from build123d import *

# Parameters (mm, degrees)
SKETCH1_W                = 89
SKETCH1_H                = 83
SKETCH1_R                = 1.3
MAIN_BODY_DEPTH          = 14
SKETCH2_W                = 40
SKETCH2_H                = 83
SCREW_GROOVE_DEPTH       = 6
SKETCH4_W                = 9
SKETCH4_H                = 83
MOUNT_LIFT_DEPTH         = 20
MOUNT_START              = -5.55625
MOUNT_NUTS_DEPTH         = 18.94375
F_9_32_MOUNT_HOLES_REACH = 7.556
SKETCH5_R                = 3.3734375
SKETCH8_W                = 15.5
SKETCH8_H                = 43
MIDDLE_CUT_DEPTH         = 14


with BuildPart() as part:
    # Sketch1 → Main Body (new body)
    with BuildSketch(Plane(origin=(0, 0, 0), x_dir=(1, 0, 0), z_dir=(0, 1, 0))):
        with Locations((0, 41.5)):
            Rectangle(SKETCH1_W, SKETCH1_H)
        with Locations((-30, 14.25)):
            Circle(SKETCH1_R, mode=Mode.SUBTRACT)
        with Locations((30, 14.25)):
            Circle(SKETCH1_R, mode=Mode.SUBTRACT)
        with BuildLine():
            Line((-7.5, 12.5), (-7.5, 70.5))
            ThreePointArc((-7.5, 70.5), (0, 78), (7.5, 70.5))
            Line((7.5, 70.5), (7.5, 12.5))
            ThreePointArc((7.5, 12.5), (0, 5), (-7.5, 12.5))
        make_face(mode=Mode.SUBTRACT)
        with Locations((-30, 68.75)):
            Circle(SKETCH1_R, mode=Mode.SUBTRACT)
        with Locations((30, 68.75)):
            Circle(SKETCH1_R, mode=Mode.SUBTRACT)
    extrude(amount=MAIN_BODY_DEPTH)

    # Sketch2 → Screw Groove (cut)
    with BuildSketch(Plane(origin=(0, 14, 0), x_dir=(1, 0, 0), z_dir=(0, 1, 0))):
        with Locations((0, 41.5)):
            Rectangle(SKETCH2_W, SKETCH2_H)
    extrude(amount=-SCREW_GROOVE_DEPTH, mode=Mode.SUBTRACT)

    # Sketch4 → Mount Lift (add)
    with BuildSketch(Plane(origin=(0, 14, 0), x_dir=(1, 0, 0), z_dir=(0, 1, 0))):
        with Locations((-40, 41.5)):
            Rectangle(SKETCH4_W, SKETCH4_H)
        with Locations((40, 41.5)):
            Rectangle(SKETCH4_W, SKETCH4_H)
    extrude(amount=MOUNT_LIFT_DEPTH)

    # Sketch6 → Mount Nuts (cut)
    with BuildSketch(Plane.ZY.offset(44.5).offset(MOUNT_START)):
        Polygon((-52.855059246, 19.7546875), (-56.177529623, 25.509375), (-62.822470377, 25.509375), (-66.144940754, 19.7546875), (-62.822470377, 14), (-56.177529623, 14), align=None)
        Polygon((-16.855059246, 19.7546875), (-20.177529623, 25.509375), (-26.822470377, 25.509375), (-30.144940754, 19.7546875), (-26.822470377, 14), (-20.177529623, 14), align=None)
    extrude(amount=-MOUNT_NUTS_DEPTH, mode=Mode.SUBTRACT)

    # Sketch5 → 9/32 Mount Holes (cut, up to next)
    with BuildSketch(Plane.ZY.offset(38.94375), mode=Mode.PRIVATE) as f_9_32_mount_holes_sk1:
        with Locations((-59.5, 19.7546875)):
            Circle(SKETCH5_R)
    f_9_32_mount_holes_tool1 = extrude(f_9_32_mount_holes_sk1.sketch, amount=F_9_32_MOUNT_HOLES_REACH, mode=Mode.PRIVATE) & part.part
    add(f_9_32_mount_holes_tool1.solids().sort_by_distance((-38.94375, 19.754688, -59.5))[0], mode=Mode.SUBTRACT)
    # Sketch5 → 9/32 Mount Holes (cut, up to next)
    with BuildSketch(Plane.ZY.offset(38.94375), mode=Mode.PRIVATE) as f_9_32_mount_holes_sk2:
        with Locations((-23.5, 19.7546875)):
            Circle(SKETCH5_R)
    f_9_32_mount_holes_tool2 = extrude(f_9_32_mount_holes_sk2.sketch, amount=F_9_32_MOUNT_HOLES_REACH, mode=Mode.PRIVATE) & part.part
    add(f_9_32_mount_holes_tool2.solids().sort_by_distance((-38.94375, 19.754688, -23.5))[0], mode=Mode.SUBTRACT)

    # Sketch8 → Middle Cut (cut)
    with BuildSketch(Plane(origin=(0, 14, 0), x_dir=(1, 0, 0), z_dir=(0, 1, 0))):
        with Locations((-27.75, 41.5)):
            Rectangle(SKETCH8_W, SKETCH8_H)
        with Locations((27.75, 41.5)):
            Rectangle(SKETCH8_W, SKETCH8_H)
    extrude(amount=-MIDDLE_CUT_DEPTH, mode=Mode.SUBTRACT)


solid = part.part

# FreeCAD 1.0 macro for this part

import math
import FreeCAD as App
import Part
import Sketcher

V = App.Vector
Q = App.Units.Quantity

doc = App.newDocument("Part")
body = doc.addObject("PartDesign::Body", "Body")

# Sketch on XZ plane
sketch1 = body.newObject("Sketcher::SketchObject", "Sketch")
sketch1.AttachmentSupport = (doc.getObject("XZ_Plane"), [""])
sketch1.MapMode = "FlatFace"
sketch1.addGeometry(Part.LineSegment(V(-44.5, -83, 0), V(-44.5, 0, 0)), False)
sketch1.addGeometry(Part.LineSegment(V(-44.5, 0, 0), V(44.5, 0, 0)), False)
sketch1.addGeometry(Part.LineSegment(V(44.5, 0, 0), V(44.5, -83, 0)), False)
sketch1.addGeometry(Part.LineSegment(V(44.5, -83, 0), V(-44.5, -83, 0)), False)
sketch1.addGeometry(Part.Circle(V(-30, -14.2, 0), V(0, 0, 1), 1.3), False)
sketch1.addGeometry(Part.Circle(V(30, -14.2, 0), V(0, 0, 1), 1.3), False)
sketch1.addGeometry(Part.Circle(V(-30, -68.8, 0), V(0, 0, 1), 1.3), False)
sketch1.addGeometry(Part.ArcOfCircle(Part.Circle(V(0, -12.5, 0), V(0, 0, 1), 7.5), math.radians(0), math.radians(180)), False)
sketch1.addGeometry(Part.LineSegment(V(-7.5, -12.5, 0), V(-7.5, -70.5, 0)), False)
sketch1.addGeometry(Part.ArcOfCircle(Part.Circle(V(0, -70.5, 0), V(0, 0, 1), 7.5), math.radians(180), math.radians(360)), False)
sketch1.addGeometry(Part.LineSegment(V(7.5, -70.5, 0), V(7.5, -12.5, 0)), False)
sketch1.addGeometry(Part.Circle(V(30, -68.8, 0), V(0, 0, 1), 1.3), False)
sketch1.addConstraint(Sketcher.Constraint("Coincident", 0, 2, 1, 1))
sketch1.addConstraint(Sketcher.Constraint("Coincident", 1, 2, 2, 1))
sketch1.addConstraint(Sketcher.Constraint("Coincident", 2, 2, 3, 1))
sketch1.addConstraint(Sketcher.Constraint("Coincident", 3, 2, 0, 1))
sketch1.addConstraint(Sketcher.Constraint("Tangent", 7, 2, 8, 1))
sketch1.addConstraint(Sketcher.Constraint("Tangent", 8, 2, 9, 1))
sketch1.addConstraint(Sketcher.Constraint("Tangent", 9, 2, 10, 1))
sketch1.addConstraint(Sketcher.Constraint("Tangent", 10, 2, 7, 1))
sketch1.addConstraint(Sketcher.Constraint("Vertical", 0))
sketch1.addConstraint(Sketcher.Constraint("Horizontal", 1))
sketch1.addConstraint(Sketcher.Constraint("Vertical", 2))
sketch1.addConstraint(Sketcher.Constraint("Horizontal", 3))
sketch1.addConstraint(Sketcher.Constraint("Vertical", 8))
sketch1.addConstraint(Sketcher.Constraint("Vertical", 10))
sketch1.addConstraint(Sketcher.Constraint("Equal", 4, 5))
sketch1.addConstraint(Sketcher.Constraint("Equal", 5, 6))
sketch1.addConstraint(Sketcher.Constraint("Equal", 6, 11))
sketch1.addConstraint(Sketcher.Constraint("Symmetric", 0, 2, 1, 2, -1, 1))
sketch1.addConstraint(Sketcher.Constraint("Symmetric", 4, 3, 5, 3, -2))
sketch1.addConstraint(Sketcher.Constraint("Symmetric", 6, 3, 11, 3, -2))
sketch1.addConstraint(Sketcher.Constraint("PointOnObject", 7, 3, -2))
sketch1.addConstraint(Sketcher.Constraint("Vertical", 4, 3, 6, 3))
sketch1.addConstraint(Sketcher.Constraint("Diameter", 4, 2.6))
sketch1.addConstraint(Sketcher.Constraint("Radius", 7, 7.5))
sketch1.addConstraint(Sketcher.Constraint("DistanceX", 1, 1, 1, 2, 89.0))
sketch1.addConstraint(Sketcher.Constraint("DistanceY", 0, 1, 0, 2, 83.0))
sketch1.addConstraint(Sketcher.Constraint("DistanceY", 8, 2, 8, 1, 58.0))
sketch1.addConstraint(Sketcher.Constraint("DistanceX", 4, 3, -1, 1, 30.0))
sketch1.addConstraint(Sketcher.Constraint("DistanceY", 7, 3, -1, 1, 12.5))
sketch1.addConstraint(Sketcher.Constraint("DistanceY", 6, 3, 4, 3, 54.5))
sketch1.addConstraint(Sketcher.Constraint("DistanceY", 4, 3, -1, 1, 14.25))
pad1 = body.newObject("PartDesign::Pad", "Pad")
pad1.Profile = sketch1
pad1.Length = 14
pad1.Reversed = True

# Sketch on XZ plane
sketch2 = body.newObject("Sketcher::SketchObject", "Sketch001")
sketch2.AttachmentSupport = (doc.getObject("XZ_Plane"), [""])
sketch2.MapMode = "FlatFace"
sketch2.AttachmentOffset = App.Placement(V(0, 0, -14), App.Rotation())
sketch2.addGeometry(Part.LineSegment(V(-20, -83, 0), V(-20, 0, 0)), False)
sketch2.addGeometry(Part.LineSegment(V(-20, 0, 0), V(20, 0, 0)), False)
sketch2.addGeometry(Part.LineSegment(V(20, 0, 0), V(20, -83, 0)), False)
sketch2.addGeometry(Part.LineSegment(V(20, -83, 0), V(-20, -83, 0)), False)
sketch2.addConstraint(Sketcher.Constraint("Coincident", 0, 2, 1, 1))
sketch2.addConstraint(Sketcher.Constraint("Coincident", 1, 2, 2, 1))
sketch2.addConstraint(Sketcher.Constraint("Coincident", 2, 2, 3, 1))
sketch2.addConstraint(Sketcher.Constraint("Coincident", 3, 2, 0, 1))
sketch2.addConstraint(Sketcher.Constraint("Vertical", 0))
sketch2.addConstraint(Sketcher.Constraint("Horizontal", 1))
sketch2.addConstraint(Sketcher.Constraint("Vertical", 2))
sketch2.addConstraint(Sketcher.Constraint("Horizontal", 3))
sketch2.addConstraint(Sketcher.Constraint("Symmetric", 0, 2, 1, 2, -1, 1))
sketch2.addConstraint(Sketcher.Constraint("DistanceX", 1, 1, 1, 2, 40.0))
sketch2.addConstraint(Sketcher.Constraint("DistanceY", 0, 1, 0, 2, 83.0))
pocket1 = body.newObject("PartDesign::Pocket", "Pocket")
pocket1.Profile = sketch2
pocket1.Length = 6
pocket1.Reversed = True

# Sketch on XZ plane
sketch3 = body.newObject("Sketcher::SketchObject", "Sketch002")
sketch3.AttachmentSupport = (doc.getObject("XZ_Plane"), [""])
sketch3.MapMode = "FlatFace"
sketch3.AttachmentOffset = App.Placement(V(0, 0, -14), App.Rotation())
sketch3.addGeometry(Part.LineSegment(V(-44, -83, 0), V(-44, 0, 0)), False)
sketch3.addGeometry(Part.LineSegment(V(-44, 0, 0), V(-36, 0, 0)), False)
sketch3.addGeometry(Part.LineSegment(V(-36, 0, 0), V(-36, -83, 0)), False)
sketch3.addGeometry(Part.LineSegment(V(-36, -83, 0), V(-44, -83, 0)), False)
sketch3.addGeometry(Part.LineSegment(V(36, -83, 0), V(36, 0, 0)), False)
sketch3.addGeometry(Part.LineSegment(V(36, 0, 0), V(44, 0, 0)), False)
sketch3.addGeometry(Part.LineSegment(V(44, 0, 0), V(44, -83, 0)), False)
sketch3.addGeometry(Part.LineSegment(V(44, -83, 0), V(36, -83, 0)), False)
sketch3.addConstraint(Sketcher.Constraint("Coincident", 0, 2, 1, 1))
sketch3.addConstraint(Sketcher.Constraint("Coincident", 1, 2, 2, 1))
sketch3.addConstraint(Sketcher.Constraint("Coincident", 2, 2, 3, 1))
sketch3.addConstraint(Sketcher.Constraint("Coincident", 3, 2, 0, 1))
sketch3.addConstraint(Sketcher.Constraint("Coincident", 4, 2, 5, 1))
sketch3.addConstraint(Sketcher.Constraint("Coincident", 5, 2, 6, 1))
sketch3.addConstraint(Sketcher.Constraint("Coincident", 6, 2, 7, 1))
sketch3.addConstraint(Sketcher.Constraint("Coincident", 7, 2, 4, 1))
sketch3.addConstraint(Sketcher.Constraint("Vertical", 0))
sketch3.addConstraint(Sketcher.Constraint("Horizontal", 1))
sketch3.addConstraint(Sketcher.Constraint("Vertical", 2))
sketch3.addConstraint(Sketcher.Constraint("Horizontal", 3))
sketch3.addConstraint(Sketcher.Constraint("Vertical", 4))
sketch3.addConstraint(Sketcher.Constraint("Horizontal", 5))
sketch3.addConstraint(Sketcher.Constraint("Vertical", 6))
sketch3.addConstraint(Sketcher.Constraint("Horizontal", 7))
sketch3.addConstraint(Sketcher.Constraint("Symmetric", 1, 2, 4, 2, -1, 1))
sketch3.addConstraint(Sketcher.Constraint("Symmetric", 0, 2, 5, 2, -2))
sketch3.addConstraint(Sketcher.Constraint("Horizontal", 3, 2, 6, 2))
sketch3.addConstraint(Sketcher.Constraint("DistanceX", 1, 1, 1, 2, 9.0))
sketch3.addConstraint(Sketcher.Constraint("DistanceY", 0, 1, 0, 2, 83.0))
sketch3.addConstraint(Sketcher.Constraint("DistanceX", 1, 2, 4, 2, 71.0))
pad2 = body.newObject("PartDesign::Pad", "Pad001")
pad2.Profile = sketch3
pad2.Length = 20
pad2.Reversed = True

# Sketch on YZ plane
sketch4 = body.newObject("Sketcher::SketchObject", "Sketch003")
sketch4.AttachmentSupport = (doc.getObject("YZ_Plane"), [""])
sketch4.MapMode = "FlatFace"
sketch4.AttachmentOffset = App.Placement(V(0, 0, -38.94375), App.Rotation())
sketch4.addGeometry(Part.LineSegment(V(20, -53, 0), V(26, -56, 0)), False)
sketch4.addGeometry(Part.LineSegment(V(26, -56, 0), V(26, -63, 0)), False)
sketch4.addGeometry(Part.LineSegment(V(26, -63, 0), V(20, -66, 0)), False)
sketch4.addGeometry(Part.LineSegment(V(20, -66, 0), V(14, -63, 0)), False)
sketch4.addGeometry(Part.LineSegment(V(14, -63, 0), V(14, -56, 0)), False)
sketch4.addGeometry(Part.LineSegment(V(14, -56, 0), V(20, -53, 0)), False)
sketch4.addGeometry(Part.LineSegment(V(20, -17, 0), V(26, -20, 0)), False)
sketch4.addGeometry(Part.LineSegment(V(26, -20, 0), V(26, -27, 0)), False)
sketch4.addGeometry(Part.LineSegment(V(26, -27, 0), V(20, -30, 0)), False)
sketch4.addGeometry(Part.LineSegment(V(20, -30, 0), V(14, -27, 0)), False)
sketch4.addGeometry(Part.LineSegment(V(14, -27, 0), V(14, -20, 0)), False)
sketch4.addGeometry(Part.LineSegment(V(14, -20, 0), V(20, -17, 0)), False)
sketch4.addConstraint(Sketcher.Constraint("Coincident", 0, 2, 1, 1))
sketch4.addConstraint(Sketcher.Constraint("Coincident", 1, 2, 2, 1))
sketch4.addConstraint(Sketcher.Constraint("Coincident", 2, 2, 3, 1))
sketch4.addConstraint(Sketcher.Constraint("Coincident", 3, 2, 4, 1))
sketch4.addConstraint(Sketcher.Constraint("Coincident", 4, 2, 5, 1))
sketch4.addConstraint(Sketcher.Constraint("Coincident", 5, 2, 0, 1))
sketch4.addConstraint(Sketcher.Constraint("Coincident", 6, 2, 7, 1))
sketch4.addConstraint(Sketcher.Constraint("Coincident", 7, 2, 8, 1))
sketch4.addConstraint(Sketcher.Constraint("Coincident", 8, 2, 9, 1))
sketch4.addConstraint(Sketcher.Constraint("Coincident", 9, 2, 10, 1))
sketch4.addConstraint(Sketcher.Constraint("Coincident", 10, 2, 11, 1))
sketch4.addConstraint(Sketcher.Constraint("Coincident", 11, 2, 6, 1))
sketch4.addConstraint(Sketcher.Constraint("Vertical", 1))
sketch4.addConstraint(Sketcher.Constraint("Vertical", 4))
sketch4.addConstraint(Sketcher.Constraint("Vertical", 7))
sketch4.addConstraint(Sketcher.Constraint("Vertical", 10))
sketch4.addConstraint(Sketcher.Constraint("Parallel", 0, 3))
sketch4.addConstraint(Sketcher.Constraint("Parallel", 2, 5))
sketch4.addConstraint(Sketcher.Constraint("Parallel", 3, 6))
sketch4.addConstraint(Sketcher.Constraint("Parallel", 5, 8))
sketch4.addConstraint(Sketcher.Constraint("Parallel", 6, 9))
sketch4.addConstraint(Sketcher.Constraint("Parallel", 8, 11))
sketch4.addConstraint(Sketcher.Constraint("Horizontal", 1, 2, 3, 2))
sketch4.addConstraint(Sketcher.Constraint("Horizontal", 0, 2, 4, 2))
sketch4.addConstraint(Sketcher.Constraint("Horizontal", 7, 2, 9, 2))
sketch4.addConstraint(Sketcher.Constraint("Horizontal", 6, 2, 10, 2))
sketch4.addConstraint(Sketcher.Constraint("Vertical", 2, 2, 5, 2))
sketch4.addConstraint(Sketcher.Constraint("Vertical", 1, 2, 6, 2))
sketch4.addConstraint(Sketcher.Constraint("Vertical", 5, 2, 8, 2))
sketch4.addConstraint(Sketcher.Constraint("Equal", 4, 7))
sketch4.addConstraint(Sketcher.Constraint("Angle", 0, Q("-30 deg")))
sketch4.addConstraint(Sketcher.Constraint("DistanceX", -1, 1, 3, 2, 14.0))
sketch4.addConstraint(Sketcher.Constraint("DistanceY", 0, 2, 6, 2, 36.0))
sketch4.addConstraint(Sketcher.Constraint("DistanceY", 1, 2, 1, 1, 6.644941))
sketch4.addConstraint(Sketcher.Constraint("Distance", 0, 6.644941))
sketch4.addConstraint(Sketcher.Constraint("DistanceY", 0, 2, -1, 1, 56.17753))
pocket2 = body.newObject("PartDesign::Pocket", "Pocket001")
pocket2.Profile = sketch4
pocket2.Length = 18.94375
pocket2.Reversed = True

# Sketch on YZ plane
sketch5 = body.newObject("Sketcher::SketchObject", "Sketch004")
sketch5.AttachmentSupport = (doc.getObject("YZ_Plane"), [""])
sketch5.MapMode = "FlatFace"
sketch5.AttachmentOffset = App.Placement(V(0, 0, -38.94375), App.Rotation())
sketch5.addGeometry(Part.Circle(V(19.8, -59.5, 0), V(0, 0, 1), 3.4), False)
sketch5.addConstraint(Sketcher.Constraint("DistanceY", 0, 3, -1, 1, 59.5))
sketch5.addConstraint(Sketcher.Constraint("Diameter", 0, 6.746875))
sketch5.addConstraint(Sketcher.Constraint("DistanceX", -1, 1, 0, 3, 19.754687))
pocket3 = body.newObject("PartDesign::Pocket", "Pocket002")
pocket3.Profile = sketch5
pocket3.Type = "UpToFirst"

# Sketch on YZ plane
sketch6 = body.newObject("Sketcher::SketchObject", "Sketch005")
sketch6.AttachmentSupport = (doc.getObject("YZ_Plane"), [""])
sketch6.MapMode = "FlatFace"
sketch6.AttachmentOffset = App.Placement(V(0, 0, -38.94375), App.Rotation())
sketch6.addGeometry(Part.Circle(V(19.8, -23.5, 0), V(0, 0, 1), 3.4), False)
sketch6.addConstraint(Sketcher.Constraint("DistanceY", 0, 3, -1, 1, 23.5))
sketch6.addConstraint(Sketcher.Constraint("Diameter", 0, 6.746875))
sketch6.addConstraint(Sketcher.Constraint("DistanceX", -1, 1, 0, 3, 19.754687))
pocket4 = body.newObject("PartDesign::Pocket", "Pocket003")
pocket4.Profile = sketch6
pocket4.Type = "UpToFirst"

# Sketch on XZ plane
sketch7 = body.newObject("Sketcher::SketchObject", "Sketch006")
sketch7.AttachmentSupport = (doc.getObject("XZ_Plane"), [""])
sketch7.MapMode = "FlatFace"
sketch7.AttachmentOffset = App.Placement(V(0, 0, -14), App.Rotation())
sketch7.addGeometry(Part.LineSegment(V(-36, -63, 0), V(-36, -20, 0)), False)
sketch7.addGeometry(Part.LineSegment(V(-36, -20, 0), V(-20, -20, 0)), False)
sketch7.addGeometry(Part.LineSegment(V(-20, -20, 0), V(-20, -63, 0)), False)
sketch7.addGeometry(Part.LineSegment(V(-20, -63, 0), V(-36, -63, 0)), False)
sketch7.addGeometry(Part.LineSegment(V(20, -63, 0), V(20, -20, 0)), False)
sketch7.addGeometry(Part.LineSegment(V(20, -20, 0), V(36, -20, 0)), False)
sketch7.addGeometry(Part.LineSegment(V(36, -20, 0), V(36, -63, 0)), False)
sketch7.addGeometry(Part.LineSegment(V(36, -63, 0), V(20, -63, 0)), False)
sketch7.addConstraint(Sketcher.Constraint("Coincident", 0, 2, 1, 1))
sketch7.addConstraint(Sketcher.Constraint("Coincident", 1, 2, 2, 1))
sketch7.addConstraint(Sketcher.Constraint("Coincident", 2, 2, 3, 1))
sketch7.addConstraint(Sketcher.Constraint("Coincident", 3, 2, 0, 1))
sketch7.addConstraint(Sketcher.Constraint("Coincident", 4, 2, 5, 1))
sketch7.addConstraint(Sketcher.Constraint("Coincident", 5, 2, 6, 1))
sketch7.addConstraint(Sketcher.Constraint("Coincident", 6, 2, 7, 1))
sketch7.addConstraint(Sketcher.Constraint("Coincident", 7, 2, 4, 1))
sketch7.addConstraint(Sketcher.Constraint("Vertical", 0))
sketch7.addConstraint(Sketcher.Constraint("Horizontal", 1))
sketch7.addConstraint(Sketcher.Constraint("Vertical", 2))
sketch7.addConstraint(Sketcher.Constraint("Horizontal", 3))
sketch7.addConstraint(Sketcher.Constraint("Vertical", 4))
sketch7.addConstraint(Sketcher.Constraint("Horizontal", 5))
sketch7.addConstraint(Sketcher.Constraint("Vertical", 6))
sketch7.addConstraint(Sketcher.Constraint("Horizontal", 7))
sketch7.addConstraint(Sketcher.Constraint("Symmetric", 1, 2, 4, 2, -2))
sketch7.addConstraint(Sketcher.Constraint("Symmetric", 3, 2, 6, 2, -2))
sketch7.addConstraint(Sketcher.Constraint("DistanceY", 0, 1, 0, 2, 43.0))
sketch7.addConstraint(Sketcher.Constraint("DistanceX", 1, 1, 1, 2, 15.5))
sketch7.addConstraint(Sketcher.Constraint("DistanceY", 0, 2, -1, 1, 20.0))
sketch7.addConstraint(Sketcher.Constraint("DistanceX", 1, 2, -1, 1, 20.0))
pocket5 = body.newObject("PartDesign::Pocket", "Pocket004")
pocket5.Profile = sketch7
pocket5.Length = 14
pocket5.Reversed = True

doc.recompute()
